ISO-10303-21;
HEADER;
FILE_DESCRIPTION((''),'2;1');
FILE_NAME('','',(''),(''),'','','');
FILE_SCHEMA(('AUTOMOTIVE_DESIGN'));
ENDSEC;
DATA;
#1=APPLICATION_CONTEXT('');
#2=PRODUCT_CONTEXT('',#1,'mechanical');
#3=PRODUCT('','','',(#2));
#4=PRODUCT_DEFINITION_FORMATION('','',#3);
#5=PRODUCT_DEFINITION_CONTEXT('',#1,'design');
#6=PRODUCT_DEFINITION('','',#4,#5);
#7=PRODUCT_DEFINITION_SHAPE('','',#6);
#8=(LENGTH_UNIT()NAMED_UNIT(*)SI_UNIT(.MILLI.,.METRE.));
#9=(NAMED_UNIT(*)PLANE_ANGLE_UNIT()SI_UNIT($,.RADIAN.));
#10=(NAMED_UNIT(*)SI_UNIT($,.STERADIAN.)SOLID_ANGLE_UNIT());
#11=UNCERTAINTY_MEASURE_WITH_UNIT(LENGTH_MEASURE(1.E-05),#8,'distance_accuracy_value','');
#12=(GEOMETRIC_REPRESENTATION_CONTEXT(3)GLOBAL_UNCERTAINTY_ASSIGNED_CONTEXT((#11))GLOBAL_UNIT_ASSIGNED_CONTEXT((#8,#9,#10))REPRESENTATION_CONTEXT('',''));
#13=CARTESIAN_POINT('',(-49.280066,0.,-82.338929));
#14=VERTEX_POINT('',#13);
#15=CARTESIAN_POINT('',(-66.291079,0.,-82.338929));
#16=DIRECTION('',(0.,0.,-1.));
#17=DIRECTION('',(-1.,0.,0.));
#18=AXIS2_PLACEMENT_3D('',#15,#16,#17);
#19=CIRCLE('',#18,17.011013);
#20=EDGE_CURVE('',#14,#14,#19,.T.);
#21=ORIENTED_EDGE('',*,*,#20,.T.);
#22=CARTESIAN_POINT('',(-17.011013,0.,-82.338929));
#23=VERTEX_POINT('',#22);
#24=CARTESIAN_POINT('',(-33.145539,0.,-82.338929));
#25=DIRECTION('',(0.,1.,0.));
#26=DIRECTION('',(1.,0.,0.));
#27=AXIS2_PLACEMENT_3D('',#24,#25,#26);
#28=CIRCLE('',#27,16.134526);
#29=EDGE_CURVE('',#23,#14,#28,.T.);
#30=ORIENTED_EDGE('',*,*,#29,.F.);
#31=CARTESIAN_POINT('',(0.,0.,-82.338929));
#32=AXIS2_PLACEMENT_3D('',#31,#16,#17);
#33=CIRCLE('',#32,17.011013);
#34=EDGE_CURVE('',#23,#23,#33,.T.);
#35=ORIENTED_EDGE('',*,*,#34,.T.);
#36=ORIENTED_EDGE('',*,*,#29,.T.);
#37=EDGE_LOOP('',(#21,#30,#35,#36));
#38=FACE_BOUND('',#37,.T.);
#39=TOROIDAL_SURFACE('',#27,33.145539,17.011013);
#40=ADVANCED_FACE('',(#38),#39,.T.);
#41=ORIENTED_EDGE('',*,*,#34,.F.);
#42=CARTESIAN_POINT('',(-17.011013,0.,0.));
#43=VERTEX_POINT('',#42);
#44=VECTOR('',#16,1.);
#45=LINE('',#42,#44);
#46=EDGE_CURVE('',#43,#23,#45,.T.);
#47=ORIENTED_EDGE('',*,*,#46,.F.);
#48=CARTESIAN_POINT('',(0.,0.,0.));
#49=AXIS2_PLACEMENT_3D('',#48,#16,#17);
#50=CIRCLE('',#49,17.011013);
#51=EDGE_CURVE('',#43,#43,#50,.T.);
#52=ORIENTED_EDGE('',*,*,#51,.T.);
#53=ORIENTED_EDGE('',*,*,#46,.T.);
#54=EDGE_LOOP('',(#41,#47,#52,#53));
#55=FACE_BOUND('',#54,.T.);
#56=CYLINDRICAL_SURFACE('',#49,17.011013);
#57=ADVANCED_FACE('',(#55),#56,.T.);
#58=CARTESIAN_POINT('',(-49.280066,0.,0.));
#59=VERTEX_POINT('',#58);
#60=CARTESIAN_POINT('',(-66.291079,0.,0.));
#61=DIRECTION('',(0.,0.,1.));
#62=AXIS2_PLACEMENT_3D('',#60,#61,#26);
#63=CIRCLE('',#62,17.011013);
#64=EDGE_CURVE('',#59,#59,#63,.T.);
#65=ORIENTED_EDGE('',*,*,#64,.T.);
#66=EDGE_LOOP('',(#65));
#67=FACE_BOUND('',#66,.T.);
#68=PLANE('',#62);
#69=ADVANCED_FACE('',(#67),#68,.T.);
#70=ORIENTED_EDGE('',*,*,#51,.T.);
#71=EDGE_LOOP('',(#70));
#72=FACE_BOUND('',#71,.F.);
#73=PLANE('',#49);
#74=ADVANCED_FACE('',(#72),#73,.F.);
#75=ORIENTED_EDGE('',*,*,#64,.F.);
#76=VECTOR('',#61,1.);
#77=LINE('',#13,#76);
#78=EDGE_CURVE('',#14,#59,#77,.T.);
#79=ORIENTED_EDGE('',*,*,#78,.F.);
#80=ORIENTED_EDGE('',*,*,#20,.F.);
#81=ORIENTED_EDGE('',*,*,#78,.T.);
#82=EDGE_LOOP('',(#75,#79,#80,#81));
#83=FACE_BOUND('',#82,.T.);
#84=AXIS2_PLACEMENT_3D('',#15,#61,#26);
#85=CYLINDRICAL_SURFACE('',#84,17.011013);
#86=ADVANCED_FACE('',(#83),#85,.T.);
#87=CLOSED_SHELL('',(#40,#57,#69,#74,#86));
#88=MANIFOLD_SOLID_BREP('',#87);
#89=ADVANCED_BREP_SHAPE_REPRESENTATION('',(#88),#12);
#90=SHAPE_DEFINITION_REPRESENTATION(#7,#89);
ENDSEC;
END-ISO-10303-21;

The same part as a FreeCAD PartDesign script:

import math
import FreeCAD as App
import Part
import Sketcher

doc = App.newDocument("Part")
body = doc.addObject("PartDesign::Body", "Body")

# Sketch on XY plane
sketch1 = body.newObject("Sketcher::SketchObject", "Sketch")
sketch1.AttachmentSupport = (doc.getObject("XY_Plane"), [""])
sketch1.MapMode = "FlatFace"
sketch1.addGeometry(Part.Circle(App.Vector(-66, 0, 0), App.Vector(0, 0, 1), 17), False)
sketch1.addConstraint(Sketcher.Constraint("PointOnObject", 0, 3, -1))
sketch1.addConstraint(Sketcher.Constraint("Diameter", 0, 34.022026))
sketch1.addConstraint(Sketcher.Constraint("DistanceX", 0, 3, -1, 1, 66.291079))

# Sketch on XZ plane
sketch2 = body.newObject("Sketcher::SketchObject", "Sketch001")
sketch2.AttachmentSupport = (doc.getObject("XZ_Plane"), [""])
sketch2.MapMode = "FlatFace"
sketch2.addGeometry(Part.LineSegment(App.Vector(0, 0, 0), App.Vector(0, -82, 0)), False)
sketch2.addGeometry(Part.ArcOfCircle(Part.Circle(App.Vector(-33, -82, 0), App.Vector(0, 0, 1), 33), math.radians(180), math.radians(360)), False)
sketch2.addGeometry(Part.LineSegment(App.Vector(-66, -82, 0), App.Vector(-66, 0, 0)), False)
sketch2.addConstraint(Sketcher.Constraint("Tangent", 0, 2, 1, 2))
sketch2.addConstraint(Sketcher.Constraint("Tangent", 1, 1, 2, 1))
sketch2.addConstraint(Sketcher.Constraint("Vertical", 0))
sketch2.addConstraint(Sketcher.Constraint("Vertical", 2))
sketch2.addConstraint(Sketcher.Constraint("Coincident", 0, 1, -1, 1))
sketch2.addConstraint(Sketcher.Constraint("PointOnObject", 2, 2, -1))
sketch2.addConstraint(Sketcher.Constraint("Radius", 1, 33.145539))
sketch2.addConstraint(Sketcher.Constraint("DistanceY", 0, 2, 0, 1, 82.338929))
doc.recompute()

additivepipe = body.newObject("PartDesign::AdditivePipe", "AdditivePipe")
additivepipe.Profile = sketch1
additivepipe.Spine = (sketch2, ["Edge1", "Edge2", "Edge3"])

doc.recompute()
